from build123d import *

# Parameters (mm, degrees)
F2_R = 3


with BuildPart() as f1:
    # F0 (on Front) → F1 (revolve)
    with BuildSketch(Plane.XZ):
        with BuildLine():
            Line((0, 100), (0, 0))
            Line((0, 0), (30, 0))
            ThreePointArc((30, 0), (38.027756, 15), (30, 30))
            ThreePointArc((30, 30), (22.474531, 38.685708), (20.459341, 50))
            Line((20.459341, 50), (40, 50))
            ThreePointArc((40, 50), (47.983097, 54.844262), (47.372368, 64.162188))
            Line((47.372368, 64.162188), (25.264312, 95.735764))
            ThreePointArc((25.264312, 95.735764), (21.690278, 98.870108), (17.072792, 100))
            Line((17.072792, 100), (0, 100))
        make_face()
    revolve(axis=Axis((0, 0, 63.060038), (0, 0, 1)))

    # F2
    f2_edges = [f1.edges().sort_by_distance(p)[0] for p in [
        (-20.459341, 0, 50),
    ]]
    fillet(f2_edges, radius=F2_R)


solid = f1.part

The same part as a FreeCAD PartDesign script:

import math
import FreeCAD as App
import Part
import Sketcher
from FreeCAD import Vector
Q = App.Units.Quantity


def edges_at(feature, points):
    """Names of the edges that pass closest to the given points."""
    edges = feature.Shape.Edges
    near = lambda p: min(range(len(edges)), key=lambda i: edges[i].distToShape(Part.Vertex(*p))[0])
    return sorted({f"Edge{near(p) + 1}" for p in points})

doc = App.newDocument("Part")
body = doc.addObject("PartDesign::Body", "Body")

sketch1 = body.newObject("Sketcher::SketchObject", "Sketch")
sketch1.AttachmentSupport = (doc.getObject("XZ_Plane"), [""])
sketch1.MapMode = "FlatFace"
sketch1.addGeometry([
    Part.LineSegment(Vector(0, 100, 0), Vector(0, 0, 0)),
    Part.LineSegment(Vector(0, 0, 0), Vector(30, 0, 0)),
    Part.ArcOfCircle(Part.Circle(Vector(20, 15, 0), Vector(0, 0, 1), 18), math.radians(-56), math.radians(56)),
    Part.ArcOfCircle(Part.Circle(Vector(42, 48, 0), Vector(0, 0, 1), 22), math.radians(175), math.radians(236)),
    Part.LineSegment(Vector(20, 50, 0), Vector(40, 50, 0)),
    Part.ArcOfCircle(Part.Circle(Vector(40, 59, 0), Vector(0, 0, 1), 9), math.radians(-90), math.radians(35)),
    Part.LineSegment(Vector(47, 64, 0), Vector(25, 96, 0)),
    Part.ArcOfCircle(Part.Circle(Vector(17, 90, 0), Vector(0, 0, 1), 10), math.radians(35), math.radians(90)),
    Part.LineSegment(Vector(17, 100, 0), Vector(0, 100, 0)),
], False)
sketch1.addConstraint([
    Sketcher.Constraint("Coincident", 0, 2, 1, 1),
    Sketcher.Constraint("Coincident", 1, 2, 2, 1),
    Sketcher.Constraint("Tangent", 2, 2, 3, 2),
    Sketcher.Constraint("Coincident", 3, 1, 4, 1),
    Sketcher.Constraint("Tangent", 4, 2, 5, 1),
    Sketcher.Constraint("Tangent", 5, 2, 6, 1),
    Sketcher.Constraint("Tangent", 6, 2, 7, 1),
    Sketcher.Constraint("Tangent", 7, 2, 8, 1),
    Sketcher.Constraint("Coincident", 8, 2, 0, 1),
    Sketcher.Constraint("Vertical", 0),
    Sketcher.Constraint("Horizontal", 1),
    Sketcher.Constraint("Horizontal", 4),
    Sketcher.Constraint("Horizontal", 8),
    Sketcher.Constraint("Coincident", 0, 2, -1, 1),
    Sketcher.Constraint("Vertical", 1, 2, 2, 2),
    Sketcher.Constraint("Radius", 5, Q("9 mm")),
    Sketcher.Constraint("Radius", 7, Q("10 mm")),
    Sketcher.Constraint("DistanceX", 1, 1, 1, 2, Q("30 mm")),
    Sketcher.Constraint("DistanceY", 0, 2, 0, 1, Q("100 mm")),
    Sketcher.Constraint("Angle", 6, Q("125 deg")),
    Sketcher.Constraint("DistanceX", -1, 1, 2, 3, Q("19.999999 mm")),
    Sketcher.Constraint("DistanceY", -1, 1, 2, 3, Q("15 mm")),
    Sketcher.Constraint("DistanceY", -1, 1, 3, 3, Q("48.000001 mm")),
    Sketcher.Constraint("DistanceX", -1, 1, 5, 3, Q("40 mm")),
    Sketcher.Constraint("DistanceY", -1, 1, 5, 3, Q("59 mm")),
])
revolution = body.newObject("PartDesign::Revolution", "Revolution")
revolution.Profile = sketch1
revolution.ReferenceAxis = (sketch1, ["V_Axis"])
revolution.Angle = 360
doc.recompute()

fillet = body.newObject("PartDesign::Fillet", "Fillet")
fillet.Base = (revolution, edges_at(revolution, [(-20.459, 0, 50)]))
fillet.Radius = 3

doc.recompute()
